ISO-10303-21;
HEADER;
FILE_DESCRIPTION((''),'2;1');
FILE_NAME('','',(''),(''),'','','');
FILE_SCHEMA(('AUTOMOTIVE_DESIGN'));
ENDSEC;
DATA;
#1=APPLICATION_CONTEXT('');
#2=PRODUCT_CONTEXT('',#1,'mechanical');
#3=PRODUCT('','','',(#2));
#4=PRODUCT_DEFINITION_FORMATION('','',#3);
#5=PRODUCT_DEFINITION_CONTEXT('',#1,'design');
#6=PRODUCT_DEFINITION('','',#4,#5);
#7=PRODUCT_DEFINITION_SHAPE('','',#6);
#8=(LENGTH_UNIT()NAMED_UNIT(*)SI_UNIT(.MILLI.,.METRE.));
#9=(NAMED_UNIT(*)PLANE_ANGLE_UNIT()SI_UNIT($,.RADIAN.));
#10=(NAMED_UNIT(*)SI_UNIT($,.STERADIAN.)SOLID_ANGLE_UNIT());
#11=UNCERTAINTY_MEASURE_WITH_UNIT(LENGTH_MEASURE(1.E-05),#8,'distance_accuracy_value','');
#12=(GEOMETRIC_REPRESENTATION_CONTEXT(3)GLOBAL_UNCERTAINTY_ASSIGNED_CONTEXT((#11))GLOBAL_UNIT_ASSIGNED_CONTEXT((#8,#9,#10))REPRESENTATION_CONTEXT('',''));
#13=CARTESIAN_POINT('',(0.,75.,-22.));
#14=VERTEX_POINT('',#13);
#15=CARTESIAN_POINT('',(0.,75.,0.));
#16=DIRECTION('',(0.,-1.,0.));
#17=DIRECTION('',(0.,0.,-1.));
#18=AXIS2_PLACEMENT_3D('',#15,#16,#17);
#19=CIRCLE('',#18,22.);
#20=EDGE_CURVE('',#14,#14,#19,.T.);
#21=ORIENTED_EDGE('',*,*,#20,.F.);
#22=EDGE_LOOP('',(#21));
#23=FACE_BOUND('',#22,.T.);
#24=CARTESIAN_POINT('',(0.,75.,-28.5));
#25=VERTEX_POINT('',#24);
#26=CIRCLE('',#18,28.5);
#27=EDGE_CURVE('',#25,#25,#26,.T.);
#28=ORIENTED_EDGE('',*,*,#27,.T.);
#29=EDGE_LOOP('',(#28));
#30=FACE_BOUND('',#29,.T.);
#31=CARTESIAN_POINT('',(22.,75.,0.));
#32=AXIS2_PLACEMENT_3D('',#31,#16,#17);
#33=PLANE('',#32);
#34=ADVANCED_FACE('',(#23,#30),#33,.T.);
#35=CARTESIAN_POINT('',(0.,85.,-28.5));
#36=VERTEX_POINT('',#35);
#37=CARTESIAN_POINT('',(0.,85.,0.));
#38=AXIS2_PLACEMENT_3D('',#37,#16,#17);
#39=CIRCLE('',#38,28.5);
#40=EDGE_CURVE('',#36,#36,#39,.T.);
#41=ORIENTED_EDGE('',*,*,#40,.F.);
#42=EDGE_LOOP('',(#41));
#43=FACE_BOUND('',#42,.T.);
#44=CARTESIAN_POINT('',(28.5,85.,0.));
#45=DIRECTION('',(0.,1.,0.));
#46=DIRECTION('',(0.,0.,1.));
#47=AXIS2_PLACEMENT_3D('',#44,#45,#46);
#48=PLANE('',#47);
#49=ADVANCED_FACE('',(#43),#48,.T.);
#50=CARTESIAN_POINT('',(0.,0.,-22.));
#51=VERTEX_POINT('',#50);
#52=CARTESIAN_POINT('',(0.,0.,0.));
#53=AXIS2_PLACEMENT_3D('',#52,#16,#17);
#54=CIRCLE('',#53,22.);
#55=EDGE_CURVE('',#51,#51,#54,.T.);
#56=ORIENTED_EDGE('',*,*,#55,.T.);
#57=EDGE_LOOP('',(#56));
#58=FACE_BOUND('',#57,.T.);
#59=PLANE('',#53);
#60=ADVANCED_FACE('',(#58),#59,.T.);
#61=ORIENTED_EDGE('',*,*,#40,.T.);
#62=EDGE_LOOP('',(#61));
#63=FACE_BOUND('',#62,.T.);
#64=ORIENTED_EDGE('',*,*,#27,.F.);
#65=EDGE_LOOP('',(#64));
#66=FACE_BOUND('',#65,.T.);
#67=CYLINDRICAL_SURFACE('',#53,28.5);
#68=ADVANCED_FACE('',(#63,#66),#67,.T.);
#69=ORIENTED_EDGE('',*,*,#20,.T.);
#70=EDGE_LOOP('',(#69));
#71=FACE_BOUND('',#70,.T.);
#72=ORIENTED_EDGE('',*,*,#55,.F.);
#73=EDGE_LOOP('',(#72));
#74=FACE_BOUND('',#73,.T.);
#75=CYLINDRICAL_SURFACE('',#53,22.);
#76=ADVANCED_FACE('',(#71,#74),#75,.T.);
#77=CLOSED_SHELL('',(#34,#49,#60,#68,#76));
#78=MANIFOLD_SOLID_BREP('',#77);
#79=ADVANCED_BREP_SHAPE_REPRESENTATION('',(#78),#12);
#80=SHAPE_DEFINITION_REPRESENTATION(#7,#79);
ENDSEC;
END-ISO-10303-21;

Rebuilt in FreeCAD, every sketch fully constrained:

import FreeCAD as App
import Part
import Sketcher
from FreeCAD import Vector


def add_polygon(sketch, points):
    """Adds a closed chain of lines whose ends are joined by coincident constraints."""
    first, n = sketch.GeometryCount, len(points)
    for a, b in zip(points, points[1:] + points[:1]):
        sketch.addGeometry(Part.LineSegment(App.Vector(*a, 0), App.Vector(*b, 0)), False)
    for i in range(n):
        sketch.addConstraint(Sketcher.Constraint("Coincident", first + i, 2, first + (i + 1) % n, 1))

doc = App.newDocument("Part")
body = doc.addObject("PartDesign::Body", "Body")

sketch1 = body.newObject("Sketcher::SketchObject", "Sketch")
sketch1.AttachmentSupport = (doc.getObject("XY_Plane"), [""])
sketch1.MapMode = "FlatFace"
add_polygon(sketch1, [(0, 0), (22, 0), (22, 75), (28.5, 75), (28.5, 85), (0, 85)])
sketch1.addConstraint([
    Sketcher.Constraint("Horizontal", 0),
    Sketcher.Constraint("Vertical", 1),
    Sketcher.Constraint("Horizontal", 2),
    Sketcher.Constraint("Vertical", 3),
    Sketcher.Constraint("Horizontal", 4),
    Sketcher.Constraint("Vertical", 5),
    Sketcher.Constraint("Coincident", 5, 2, -1, 1),
    Sketcher.Constraint("DistanceX", 0, 1, 0, 2, 22.0),
    Sketcher.Constraint("DistanceY", 1, 1, 1, 2, 75.0),
    Sketcher.Constraint("DistanceY", 3, 1, 3, 2, 10.0),
    Sketcher.Constraint("DistanceX", 2, 1, 2, 2, 6.5),
])
revolution = body.newObject("PartDesign::Revolution", "Revolution")
revolution.Profile = sketch1
revolution.ReferenceAxis = (sketch1, ["V_Axis"])
revolution.Angle = 360

doc.recompute()
